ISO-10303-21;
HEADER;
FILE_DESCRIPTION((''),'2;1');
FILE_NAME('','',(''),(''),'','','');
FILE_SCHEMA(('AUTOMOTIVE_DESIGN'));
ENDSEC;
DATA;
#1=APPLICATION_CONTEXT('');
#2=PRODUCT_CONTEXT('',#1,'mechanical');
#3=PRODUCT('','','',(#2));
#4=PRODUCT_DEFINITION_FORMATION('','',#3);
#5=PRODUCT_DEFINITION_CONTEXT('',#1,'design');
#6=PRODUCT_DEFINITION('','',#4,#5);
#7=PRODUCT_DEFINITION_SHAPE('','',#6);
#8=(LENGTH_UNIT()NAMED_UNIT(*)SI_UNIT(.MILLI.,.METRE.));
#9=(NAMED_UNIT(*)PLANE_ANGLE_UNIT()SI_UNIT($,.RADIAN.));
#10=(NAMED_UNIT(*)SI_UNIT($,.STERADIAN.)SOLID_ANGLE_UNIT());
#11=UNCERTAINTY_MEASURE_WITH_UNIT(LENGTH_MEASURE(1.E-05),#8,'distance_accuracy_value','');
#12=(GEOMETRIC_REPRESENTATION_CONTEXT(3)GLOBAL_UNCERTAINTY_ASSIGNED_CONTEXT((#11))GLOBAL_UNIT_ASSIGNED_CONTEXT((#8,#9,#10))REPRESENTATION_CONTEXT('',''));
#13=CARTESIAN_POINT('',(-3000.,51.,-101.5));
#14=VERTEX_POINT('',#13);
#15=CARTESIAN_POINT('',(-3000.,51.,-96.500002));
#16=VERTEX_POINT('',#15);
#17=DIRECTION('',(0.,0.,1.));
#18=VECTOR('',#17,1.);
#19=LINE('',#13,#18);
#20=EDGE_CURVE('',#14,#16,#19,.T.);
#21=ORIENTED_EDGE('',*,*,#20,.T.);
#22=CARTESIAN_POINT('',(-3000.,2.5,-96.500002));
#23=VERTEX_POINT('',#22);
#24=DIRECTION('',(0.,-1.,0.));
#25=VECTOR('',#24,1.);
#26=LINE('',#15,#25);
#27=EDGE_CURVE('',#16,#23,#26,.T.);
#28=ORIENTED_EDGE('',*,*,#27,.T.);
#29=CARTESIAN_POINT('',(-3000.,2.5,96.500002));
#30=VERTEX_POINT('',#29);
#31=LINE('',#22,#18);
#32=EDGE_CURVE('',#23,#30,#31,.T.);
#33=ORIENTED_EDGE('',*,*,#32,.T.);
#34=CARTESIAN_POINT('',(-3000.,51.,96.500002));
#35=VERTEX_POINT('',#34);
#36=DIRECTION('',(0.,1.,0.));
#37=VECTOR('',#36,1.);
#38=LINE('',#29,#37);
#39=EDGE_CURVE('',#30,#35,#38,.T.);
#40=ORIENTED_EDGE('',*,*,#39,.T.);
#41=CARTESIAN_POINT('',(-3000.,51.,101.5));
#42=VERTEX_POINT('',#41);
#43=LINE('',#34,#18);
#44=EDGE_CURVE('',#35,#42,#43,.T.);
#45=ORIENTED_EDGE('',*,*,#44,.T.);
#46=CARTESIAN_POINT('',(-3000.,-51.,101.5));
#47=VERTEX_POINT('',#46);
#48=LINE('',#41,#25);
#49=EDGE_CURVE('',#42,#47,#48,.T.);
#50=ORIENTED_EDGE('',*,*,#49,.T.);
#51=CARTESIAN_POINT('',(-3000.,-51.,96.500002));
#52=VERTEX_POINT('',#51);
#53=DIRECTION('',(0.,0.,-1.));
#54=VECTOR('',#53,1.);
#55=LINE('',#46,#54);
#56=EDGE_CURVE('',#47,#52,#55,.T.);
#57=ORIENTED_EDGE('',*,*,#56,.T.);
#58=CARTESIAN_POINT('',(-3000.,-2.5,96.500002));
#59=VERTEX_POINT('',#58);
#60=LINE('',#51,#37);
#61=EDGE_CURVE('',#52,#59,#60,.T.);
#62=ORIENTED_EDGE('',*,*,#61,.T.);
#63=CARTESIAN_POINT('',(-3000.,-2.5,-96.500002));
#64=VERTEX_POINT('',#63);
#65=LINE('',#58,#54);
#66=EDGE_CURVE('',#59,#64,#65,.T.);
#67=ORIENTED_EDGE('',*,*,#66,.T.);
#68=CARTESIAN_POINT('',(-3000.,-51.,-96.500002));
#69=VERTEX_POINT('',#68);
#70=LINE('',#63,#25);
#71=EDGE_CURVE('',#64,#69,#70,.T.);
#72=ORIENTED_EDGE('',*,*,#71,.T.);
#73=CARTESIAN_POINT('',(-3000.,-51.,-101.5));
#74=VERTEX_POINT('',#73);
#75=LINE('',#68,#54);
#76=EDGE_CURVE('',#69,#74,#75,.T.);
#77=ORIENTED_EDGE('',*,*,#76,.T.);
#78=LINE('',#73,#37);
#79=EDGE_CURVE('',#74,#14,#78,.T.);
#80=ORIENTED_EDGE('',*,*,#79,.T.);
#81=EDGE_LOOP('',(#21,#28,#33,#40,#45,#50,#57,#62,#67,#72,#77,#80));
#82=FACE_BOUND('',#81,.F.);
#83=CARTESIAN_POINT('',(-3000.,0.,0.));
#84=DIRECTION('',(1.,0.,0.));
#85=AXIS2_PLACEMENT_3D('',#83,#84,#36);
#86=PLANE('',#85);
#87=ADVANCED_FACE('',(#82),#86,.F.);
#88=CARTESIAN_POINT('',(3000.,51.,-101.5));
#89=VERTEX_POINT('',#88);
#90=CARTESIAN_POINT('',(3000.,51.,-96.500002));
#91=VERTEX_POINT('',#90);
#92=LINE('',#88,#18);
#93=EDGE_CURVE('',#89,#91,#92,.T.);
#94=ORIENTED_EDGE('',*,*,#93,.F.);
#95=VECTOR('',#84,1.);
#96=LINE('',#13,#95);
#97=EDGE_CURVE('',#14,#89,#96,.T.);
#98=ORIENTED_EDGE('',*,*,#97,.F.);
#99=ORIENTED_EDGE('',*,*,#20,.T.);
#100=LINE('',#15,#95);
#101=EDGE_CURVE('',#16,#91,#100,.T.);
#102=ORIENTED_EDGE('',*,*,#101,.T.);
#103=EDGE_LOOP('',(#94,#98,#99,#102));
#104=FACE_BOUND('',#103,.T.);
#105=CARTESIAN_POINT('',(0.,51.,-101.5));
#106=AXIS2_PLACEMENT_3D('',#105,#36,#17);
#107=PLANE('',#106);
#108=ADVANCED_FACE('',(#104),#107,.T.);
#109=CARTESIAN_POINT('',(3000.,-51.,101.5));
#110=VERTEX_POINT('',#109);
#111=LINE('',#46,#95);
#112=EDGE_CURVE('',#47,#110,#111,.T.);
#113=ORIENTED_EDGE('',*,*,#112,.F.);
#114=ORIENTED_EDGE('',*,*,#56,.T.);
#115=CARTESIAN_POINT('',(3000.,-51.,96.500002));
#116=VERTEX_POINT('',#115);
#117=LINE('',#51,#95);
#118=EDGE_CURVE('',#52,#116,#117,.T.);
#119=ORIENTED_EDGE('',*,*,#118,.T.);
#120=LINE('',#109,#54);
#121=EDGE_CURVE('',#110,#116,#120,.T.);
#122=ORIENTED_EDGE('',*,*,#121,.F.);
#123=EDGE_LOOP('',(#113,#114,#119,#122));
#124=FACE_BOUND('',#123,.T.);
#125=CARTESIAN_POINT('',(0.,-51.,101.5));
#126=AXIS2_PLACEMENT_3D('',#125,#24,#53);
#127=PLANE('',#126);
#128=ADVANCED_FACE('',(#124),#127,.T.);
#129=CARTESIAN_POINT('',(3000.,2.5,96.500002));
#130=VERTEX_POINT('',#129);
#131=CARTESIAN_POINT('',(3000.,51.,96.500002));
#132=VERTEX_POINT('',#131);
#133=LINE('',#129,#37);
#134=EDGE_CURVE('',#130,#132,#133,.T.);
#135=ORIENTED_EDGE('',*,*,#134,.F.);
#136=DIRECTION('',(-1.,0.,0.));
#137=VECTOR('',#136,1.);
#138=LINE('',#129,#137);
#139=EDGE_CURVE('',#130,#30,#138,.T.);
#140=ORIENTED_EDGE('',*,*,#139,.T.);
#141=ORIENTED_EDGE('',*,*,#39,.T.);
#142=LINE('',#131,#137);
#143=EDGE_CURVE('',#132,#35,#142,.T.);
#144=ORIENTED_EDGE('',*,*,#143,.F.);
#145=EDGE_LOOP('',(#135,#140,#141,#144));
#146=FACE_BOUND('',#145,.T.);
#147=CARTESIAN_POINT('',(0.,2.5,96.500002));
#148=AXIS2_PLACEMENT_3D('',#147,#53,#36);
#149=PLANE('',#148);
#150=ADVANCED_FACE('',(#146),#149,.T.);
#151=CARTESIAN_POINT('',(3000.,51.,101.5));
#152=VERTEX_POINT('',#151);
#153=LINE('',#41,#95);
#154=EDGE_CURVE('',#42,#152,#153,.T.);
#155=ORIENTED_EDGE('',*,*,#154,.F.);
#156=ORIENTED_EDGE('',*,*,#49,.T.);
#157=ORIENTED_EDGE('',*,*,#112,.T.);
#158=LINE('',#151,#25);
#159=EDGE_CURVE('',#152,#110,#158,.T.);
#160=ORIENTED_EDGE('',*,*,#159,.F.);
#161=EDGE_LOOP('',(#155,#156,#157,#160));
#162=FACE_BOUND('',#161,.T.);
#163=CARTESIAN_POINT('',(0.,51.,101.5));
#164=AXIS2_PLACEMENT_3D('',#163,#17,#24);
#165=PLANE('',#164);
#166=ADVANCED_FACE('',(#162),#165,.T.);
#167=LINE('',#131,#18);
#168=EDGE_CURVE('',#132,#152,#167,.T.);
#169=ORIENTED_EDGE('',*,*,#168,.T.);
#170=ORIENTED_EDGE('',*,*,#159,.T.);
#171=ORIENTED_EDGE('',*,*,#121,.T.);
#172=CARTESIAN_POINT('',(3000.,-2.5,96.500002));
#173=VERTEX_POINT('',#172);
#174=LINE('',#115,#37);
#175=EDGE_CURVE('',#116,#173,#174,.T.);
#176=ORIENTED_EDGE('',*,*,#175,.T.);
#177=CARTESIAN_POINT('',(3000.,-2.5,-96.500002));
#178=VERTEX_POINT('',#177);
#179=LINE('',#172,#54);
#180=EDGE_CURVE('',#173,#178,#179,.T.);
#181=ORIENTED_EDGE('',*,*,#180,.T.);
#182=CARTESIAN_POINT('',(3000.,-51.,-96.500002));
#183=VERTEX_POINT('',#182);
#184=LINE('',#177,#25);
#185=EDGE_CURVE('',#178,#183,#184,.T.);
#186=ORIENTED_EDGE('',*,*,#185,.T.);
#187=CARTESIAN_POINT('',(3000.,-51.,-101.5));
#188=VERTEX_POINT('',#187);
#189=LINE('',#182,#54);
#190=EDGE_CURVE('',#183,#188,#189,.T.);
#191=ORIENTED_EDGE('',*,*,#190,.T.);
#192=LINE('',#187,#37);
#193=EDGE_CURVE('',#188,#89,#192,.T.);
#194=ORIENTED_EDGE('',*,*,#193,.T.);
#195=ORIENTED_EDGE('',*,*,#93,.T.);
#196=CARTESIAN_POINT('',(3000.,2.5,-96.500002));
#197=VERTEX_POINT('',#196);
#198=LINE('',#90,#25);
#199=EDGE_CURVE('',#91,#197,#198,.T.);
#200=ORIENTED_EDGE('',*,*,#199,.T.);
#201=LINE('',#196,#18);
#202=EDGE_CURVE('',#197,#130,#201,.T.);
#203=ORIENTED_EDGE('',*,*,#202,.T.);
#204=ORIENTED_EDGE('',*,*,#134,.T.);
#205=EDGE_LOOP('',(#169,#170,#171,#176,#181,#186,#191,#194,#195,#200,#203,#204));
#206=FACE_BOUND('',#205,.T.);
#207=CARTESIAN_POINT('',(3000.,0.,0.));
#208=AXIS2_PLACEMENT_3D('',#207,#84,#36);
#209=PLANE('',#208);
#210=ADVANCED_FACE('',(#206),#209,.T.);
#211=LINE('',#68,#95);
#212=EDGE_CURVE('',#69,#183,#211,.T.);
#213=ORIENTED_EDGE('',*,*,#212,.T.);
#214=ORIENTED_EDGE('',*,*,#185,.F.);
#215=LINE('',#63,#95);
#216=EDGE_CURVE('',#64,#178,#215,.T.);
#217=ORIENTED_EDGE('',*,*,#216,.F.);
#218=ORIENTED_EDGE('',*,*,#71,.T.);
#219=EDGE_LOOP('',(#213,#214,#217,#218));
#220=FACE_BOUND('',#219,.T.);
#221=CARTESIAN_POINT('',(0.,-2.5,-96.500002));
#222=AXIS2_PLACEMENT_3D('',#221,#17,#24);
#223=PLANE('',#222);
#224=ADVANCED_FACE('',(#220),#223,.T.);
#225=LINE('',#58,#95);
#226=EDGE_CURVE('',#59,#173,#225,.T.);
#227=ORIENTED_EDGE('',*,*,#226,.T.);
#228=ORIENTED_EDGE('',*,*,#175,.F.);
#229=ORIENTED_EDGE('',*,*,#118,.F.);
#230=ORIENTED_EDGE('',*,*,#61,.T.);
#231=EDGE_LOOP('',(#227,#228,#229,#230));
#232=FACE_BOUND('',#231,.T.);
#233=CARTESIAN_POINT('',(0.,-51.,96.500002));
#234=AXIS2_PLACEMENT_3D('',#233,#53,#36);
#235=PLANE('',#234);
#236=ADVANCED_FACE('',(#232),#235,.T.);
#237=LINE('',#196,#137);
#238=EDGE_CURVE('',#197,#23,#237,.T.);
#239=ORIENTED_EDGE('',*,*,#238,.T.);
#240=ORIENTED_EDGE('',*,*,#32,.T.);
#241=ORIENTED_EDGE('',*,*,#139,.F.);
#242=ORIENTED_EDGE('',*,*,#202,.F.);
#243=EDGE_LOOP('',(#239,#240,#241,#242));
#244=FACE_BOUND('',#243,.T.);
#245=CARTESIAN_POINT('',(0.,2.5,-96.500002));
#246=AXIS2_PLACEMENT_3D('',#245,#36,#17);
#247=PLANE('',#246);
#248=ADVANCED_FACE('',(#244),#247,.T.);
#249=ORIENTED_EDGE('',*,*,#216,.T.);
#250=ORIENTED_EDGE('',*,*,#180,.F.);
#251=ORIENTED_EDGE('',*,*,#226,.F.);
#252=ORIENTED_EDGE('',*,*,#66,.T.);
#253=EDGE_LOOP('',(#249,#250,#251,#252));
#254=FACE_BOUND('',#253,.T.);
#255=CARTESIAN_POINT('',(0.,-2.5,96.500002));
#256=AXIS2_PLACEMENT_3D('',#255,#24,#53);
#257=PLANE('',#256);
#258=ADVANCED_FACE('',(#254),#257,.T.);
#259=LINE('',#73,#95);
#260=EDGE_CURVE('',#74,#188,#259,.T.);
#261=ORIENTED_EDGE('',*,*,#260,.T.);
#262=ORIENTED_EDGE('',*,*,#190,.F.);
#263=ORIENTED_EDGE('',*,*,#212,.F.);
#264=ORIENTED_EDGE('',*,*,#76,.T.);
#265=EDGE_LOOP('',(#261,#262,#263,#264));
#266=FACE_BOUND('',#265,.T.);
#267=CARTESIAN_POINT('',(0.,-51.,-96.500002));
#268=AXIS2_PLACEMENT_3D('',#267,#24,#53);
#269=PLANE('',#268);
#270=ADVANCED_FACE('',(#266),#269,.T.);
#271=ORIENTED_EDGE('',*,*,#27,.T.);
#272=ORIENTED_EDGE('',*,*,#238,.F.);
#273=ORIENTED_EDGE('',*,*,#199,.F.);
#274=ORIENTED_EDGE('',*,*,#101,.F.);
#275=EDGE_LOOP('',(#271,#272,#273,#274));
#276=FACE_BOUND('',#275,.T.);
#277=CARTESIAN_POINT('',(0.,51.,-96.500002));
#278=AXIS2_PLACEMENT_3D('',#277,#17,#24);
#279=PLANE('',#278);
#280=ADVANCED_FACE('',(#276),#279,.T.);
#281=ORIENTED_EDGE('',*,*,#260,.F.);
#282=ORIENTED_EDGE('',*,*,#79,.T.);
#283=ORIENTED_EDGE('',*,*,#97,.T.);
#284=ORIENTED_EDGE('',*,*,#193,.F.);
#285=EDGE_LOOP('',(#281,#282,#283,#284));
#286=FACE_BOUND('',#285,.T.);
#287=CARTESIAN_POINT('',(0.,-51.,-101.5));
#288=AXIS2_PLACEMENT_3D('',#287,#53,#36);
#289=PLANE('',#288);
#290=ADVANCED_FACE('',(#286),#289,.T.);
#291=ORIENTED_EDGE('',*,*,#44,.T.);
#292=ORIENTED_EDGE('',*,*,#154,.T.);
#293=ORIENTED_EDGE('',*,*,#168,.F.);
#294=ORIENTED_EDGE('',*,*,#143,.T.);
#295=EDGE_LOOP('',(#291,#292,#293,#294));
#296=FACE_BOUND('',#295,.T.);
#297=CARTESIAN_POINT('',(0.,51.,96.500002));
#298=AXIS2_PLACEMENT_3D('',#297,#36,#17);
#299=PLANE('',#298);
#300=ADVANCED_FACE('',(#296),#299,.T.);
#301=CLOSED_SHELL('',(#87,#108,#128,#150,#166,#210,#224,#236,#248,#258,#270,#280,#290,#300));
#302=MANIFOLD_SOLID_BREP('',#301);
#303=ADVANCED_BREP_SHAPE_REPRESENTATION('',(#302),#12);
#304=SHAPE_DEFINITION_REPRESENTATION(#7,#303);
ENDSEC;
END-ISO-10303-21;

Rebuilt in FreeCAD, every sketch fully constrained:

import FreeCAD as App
import Part
import Sketcher

doc = App.newDocument("Part")
body = doc.addObject("PartDesign::Body", "Body")

sketch1 = body.newObject("Sketcher::SketchObject", "Sketch")
sketch1.AttachmentSupport = (doc.getObject("YZ_Plane"), [""])
sketch1.MapMode = "FlatFace"
sketch1.addGeometry(Part.LineSegment(App.Vector(51, 96.5, 0), App.Vector(51, 101.5, 0)), False)
sketch1.addGeometry(Part.LineSegment(App.Vector(51, 101.5, 0), App.Vector(-51, 101.5, 0)), False)
sketch1.addGeometry(Part.LineSegment(App.Vector(-51, 101.5, 0), App.Vector(-51, 96.5, 0)), False)
sketch1.addGeometry(Part.LineSegment(App.Vector(-51, 96.5, 0), App.Vector(-2.5, 96.5, 0)), False)
sketch1.addGeometry(Part.LineSegment(App.Vector(-2.5, 96.5, 0), App.Vector(-2.5, -96.5, 0)), False)
sketch1.addGeometry(Part.LineSegment(App.Vector(-2.5, -96.5, 0), App.Vector(-51, -96.5, 0)), False)
sketch1.addGeometry(Part.LineSegment(App.Vector(-51, -96.5, 0), App.Vector(-51, -101.5, 0)), False)
sketch1.addGeometry(Part.LineSegment(App.Vector(-51, -101.5, 0), App.Vector(51, -101.5, 0)), False)
sketch1.addGeometry(Part.LineSegment(App.Vector(51, -101.5, 0), App.Vector(51, -96.5, 0)), False)
sketch1.addGeometry(Part.LineSegment(App.Vector(51, -96.5, 0), App.Vector(2.5, -96.5, 0)), False)
sketch1.addGeometry(Part.LineSegment(App.Vector(2.5, -96.5, 0), App.Vector(2.5, 96.5, 0)), False)
sketch1.addGeometry(Part.LineSegment(App.Vector(2.5, 96.5, 0), App.Vector(51, 96.5, 0)), False)
sketch1.addConstraint(Sketcher.Constraint("Coincident", 0, 2, 1, 1))
sketch1.addConstraint(Sketcher.Constraint("Coincident", 1, 2, 2, 1))
sketch1.addConstraint(Sketcher.Constraint("Coincident", 2, 2, 3, 1))
sketch1.addConstraint(Sketcher.Constraint("Coincident", 3, 2, 4, 1))
sketch1.addConstraint(Sketcher.Constraint("Coincident", 4, 2, 5, 1))
sketch1.addConstraint(Sketcher.Constraint("Coincident", 5, 2, 6, 1))
sketch1.addConstraint(Sketcher.Constraint("Coincident", 6, 2, 7, 1))
sketch1.addConstraint(Sketcher.Constraint("Coincident", 7, 2, 8, 1))
sketch1.addConstraint(Sketcher.Constraint("Coincident", 8, 2, 9, 1))
sketch1.addConstraint(Sketcher.Constraint("Coincident", 9, 2, 10, 1))
sketch1.addConstraint(Sketcher.Constraint("Coincident", 10, 2, 11, 1))
sketch1.addConstraint(Sketcher.Constraint("Coincident", 11, 2, 0, 1))
sketch1.addConstraint(Sketcher.Constraint("Vertical", 0))
sketch1.addConstraint(Sketcher.Constraint("Horizontal", 1))
sketch1.addConstraint(Sketcher.Constraint("Vertical", 2))
sketch1.addConstraint(Sketcher.Constraint("Horizontal", 3))
sketch1.addConstraint(Sketcher.Constraint("Vertical", 4))
sketch1.addConstraint(Sketcher.Constraint("Horizontal", 5))
sketch1.addConstraint(Sketcher.Constraint("Vertical", 6))
sketch1.addConstraint(Sketcher.Constraint("Horizontal", 7))
sketch1.addConstraint(Sketcher.Constraint("Vertical", 8))
sketch1.addConstraint(Sketcher.Constraint("Horizontal", 9))
sketch1.addConstraint(Sketcher.Constraint("Vertical", 10))
sketch1.addConstraint(Sketcher.Constraint("Horizontal", 11))
sketch1.addConstraint(Sketcher.Constraint("Symmetric", 0, 2, 6, 2, -1, 1))
sketch1.addConstraint(Sketcher.Constraint("Symmetric", 2, 2, 8, 2, -1, 1))
sketch1.addConstraint(Sketcher.Constraint("Symmetric", 4, 2, 10, 2, -1, 1))
sketch1.addConstraint(Sketcher.Constraint("Symmetric", 5, 2, 8, 2, -2))
sketch1.addConstraint(Sketcher.Constraint("DistanceX", 1, 2, 1, 1, 102.0))
sketch1.addConstraint(Sketcher.Constraint("DistanceY", 0, 1, 0, 2, 4.999998))
sketch1.addConstraint(Sketcher.Constraint("DistanceX", 3, 1, 3, 2, 48.5))
sketch1.addConstraint(Sketcher.Constraint("DistanceY", 4, 2, 1, 2, 198.000002))
pad1 = body.newObject("PartDesign::Pad", "Pad")
pad1.Profile = sketch1
pad1.Length = 6000
pad1.Midplane = True

doc.recompute()
